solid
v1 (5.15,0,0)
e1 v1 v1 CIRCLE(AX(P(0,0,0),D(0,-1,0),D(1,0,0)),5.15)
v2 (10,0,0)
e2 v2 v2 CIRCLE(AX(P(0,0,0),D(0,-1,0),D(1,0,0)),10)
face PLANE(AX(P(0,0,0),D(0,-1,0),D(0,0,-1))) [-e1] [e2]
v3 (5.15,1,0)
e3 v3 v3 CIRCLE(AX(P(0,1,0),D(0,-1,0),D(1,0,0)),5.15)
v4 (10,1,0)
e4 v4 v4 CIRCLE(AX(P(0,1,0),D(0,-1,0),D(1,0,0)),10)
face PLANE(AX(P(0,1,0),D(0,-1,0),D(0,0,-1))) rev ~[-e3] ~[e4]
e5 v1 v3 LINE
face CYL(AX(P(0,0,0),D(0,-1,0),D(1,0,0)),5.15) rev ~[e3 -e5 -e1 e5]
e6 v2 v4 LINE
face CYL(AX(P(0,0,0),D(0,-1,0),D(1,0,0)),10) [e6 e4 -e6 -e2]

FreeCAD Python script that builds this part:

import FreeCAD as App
import Part
import Sketcher
from FreeCAD import Vector
Q = App.Units.Quantity

doc = App.newDocument("Part")
body = doc.addObject("PartDesign::Body", "Body")

sketch1 = body.newObject("Sketcher::SketchObject", "Sketch")
sketch1.AttachmentSupport = (doc.getObject("XZ_Plane"), [""])
sketch1.MapMode = "FlatFace"
sketch1.addGeometry([
    Part.Circle(Vector(0, 0, 0), Vector(0, 0, 1), 10),
    Part.Circle(Vector(0, 0, 0), Vector(0, 0, 1), 5.15),
], False)
sketch1.addConstraint([
    Sketcher.Constraint("Coincident", 0, 3, -1, 1),
    Sketcher.Constraint("Coincident", 1, 3, -1, 1),
    Sketcher.Constraint("Diameter", 0, Q("20 mm")),
    Sketcher.Constraint("Diameter", 1, Q("10.3 mm")),
])
pad1 = body.newObject("PartDesign::Pad", "Pad")
pad1.Profile = sketch1
pad1.Length = 1
pad1.Reversed = True

doc.recompute()
